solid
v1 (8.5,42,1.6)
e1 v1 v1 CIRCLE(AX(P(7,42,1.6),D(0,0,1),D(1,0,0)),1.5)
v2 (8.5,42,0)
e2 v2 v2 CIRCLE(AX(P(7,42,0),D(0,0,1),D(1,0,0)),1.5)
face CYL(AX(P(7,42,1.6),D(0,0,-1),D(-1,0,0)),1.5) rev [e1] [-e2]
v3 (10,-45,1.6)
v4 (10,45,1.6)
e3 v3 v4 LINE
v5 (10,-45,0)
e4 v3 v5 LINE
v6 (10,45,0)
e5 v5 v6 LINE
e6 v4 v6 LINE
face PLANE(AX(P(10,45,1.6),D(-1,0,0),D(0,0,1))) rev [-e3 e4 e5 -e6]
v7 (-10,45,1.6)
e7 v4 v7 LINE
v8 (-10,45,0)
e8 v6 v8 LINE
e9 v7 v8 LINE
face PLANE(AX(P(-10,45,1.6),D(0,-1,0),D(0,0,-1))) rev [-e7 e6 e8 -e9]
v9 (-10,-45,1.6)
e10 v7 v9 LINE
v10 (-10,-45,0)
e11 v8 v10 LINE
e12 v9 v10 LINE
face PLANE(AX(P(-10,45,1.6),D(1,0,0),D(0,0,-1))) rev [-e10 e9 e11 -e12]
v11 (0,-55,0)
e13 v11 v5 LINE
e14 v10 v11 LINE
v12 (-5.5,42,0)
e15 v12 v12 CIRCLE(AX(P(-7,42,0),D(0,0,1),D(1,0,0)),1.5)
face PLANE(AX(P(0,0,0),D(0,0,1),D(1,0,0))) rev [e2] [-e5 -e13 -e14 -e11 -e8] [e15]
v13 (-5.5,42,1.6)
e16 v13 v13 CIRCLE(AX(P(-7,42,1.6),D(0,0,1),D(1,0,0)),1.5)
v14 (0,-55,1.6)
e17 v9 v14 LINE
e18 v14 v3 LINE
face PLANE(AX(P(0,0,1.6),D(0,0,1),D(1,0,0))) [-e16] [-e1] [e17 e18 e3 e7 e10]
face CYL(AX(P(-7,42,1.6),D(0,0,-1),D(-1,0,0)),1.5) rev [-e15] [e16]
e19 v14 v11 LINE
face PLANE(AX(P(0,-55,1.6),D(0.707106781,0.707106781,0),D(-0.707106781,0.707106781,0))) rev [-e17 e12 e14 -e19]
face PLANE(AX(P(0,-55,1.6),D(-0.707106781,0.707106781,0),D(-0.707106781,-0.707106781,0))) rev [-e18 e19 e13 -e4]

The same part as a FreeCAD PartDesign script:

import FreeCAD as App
import Part
import Sketcher

V = App.Vector
Q = App.Units.Quantity

doc = App.newDocument("Part")
body = doc.addObject("PartDesign::Body", "Body")

# Sketch on XY plane
sketch1 = doc.addObject("Sketcher::SketchObject", "Sketch")
body.addObject(sketch1)
sketch1.AttachmentSupport = (doc.XY_Plane, [""])
sketch1.MapMode = "FlatFace"
sketch1.addGeometry([
    Part.LineSegment(V(-10, -45, 0), V(0, -55, 0)),  # 0
    Part.LineSegment(V(0, -55, 0), V(10, -45, 0)),  # 1
    Part.LineSegment(V(10, -45, 0), V(10, 45, 0)),  # 2
    Part.LineSegment(V(10, 45, 0), V(-10, 45, 0)),  # 3
    Part.LineSegment(V(-10, 45, 0), V(-10, -45, 0)),  # 4
    Part.Circle(V(7, 42, 0), V(0, 0, 1), 1.5),  # 5
    Part.Circle(V(-7, 42, 0), V(0, 0, 1), 1.5),  # 6
], False)
sketch1.addConstraint([
    Sketcher.Constraint("Coincident", 0, 2, 1, 1),
    Sketcher.Constraint("Coincident", 1, 2, 2, 1),
    Sketcher.Constraint("Coincident", 2, 2, 3, 1),
    Sketcher.Constraint("Coincident", 3, 2, 4, 1),
    Sketcher.Constraint("Coincident", 4, 2, 0, 1),
    Sketcher.Constraint("Vertical", 2),
    Sketcher.Constraint("Horizontal", 3),
    Sketcher.Constraint("Vertical", 4),
    Sketcher.Constraint("Equal", 5, 6),
    Sketcher.Constraint("Symmetric", 1, 2, 3, 2, -1, 1),
    Sketcher.Constraint("Symmetric", 5, 3, 6, 3, -2),
    Sketcher.Constraint("PointOnObject", 0, 2, -2),
    Sketcher.Constraint("Perpendicular", 0, 1),
    Sketcher.Constraint("Horizontal", 1, 2, 4, 2),
    Sketcher.Constraint("Diameter", 5, Q("3 mm")),
    Sketcher.Constraint("DistanceX", 3, 2, 3, 1, Q("20 mm")),
    Sketcher.Constraint("DistanceY", 2, 1, 2, 2, Q("90 mm")),
    Sketcher.Constraint("DistanceX", -1, 1, 5, 3, Q("7 mm")),
    Sketcher.Constraint("DistanceY", -1, 1, 5, 3, Q("42 mm")),
])
pad1 = doc.addObject("PartDesign::Pad", "Pad")
body.addObject(pad1)
pad1.Profile = sketch1
pad1.Length = 1.6

doc.recompute()
